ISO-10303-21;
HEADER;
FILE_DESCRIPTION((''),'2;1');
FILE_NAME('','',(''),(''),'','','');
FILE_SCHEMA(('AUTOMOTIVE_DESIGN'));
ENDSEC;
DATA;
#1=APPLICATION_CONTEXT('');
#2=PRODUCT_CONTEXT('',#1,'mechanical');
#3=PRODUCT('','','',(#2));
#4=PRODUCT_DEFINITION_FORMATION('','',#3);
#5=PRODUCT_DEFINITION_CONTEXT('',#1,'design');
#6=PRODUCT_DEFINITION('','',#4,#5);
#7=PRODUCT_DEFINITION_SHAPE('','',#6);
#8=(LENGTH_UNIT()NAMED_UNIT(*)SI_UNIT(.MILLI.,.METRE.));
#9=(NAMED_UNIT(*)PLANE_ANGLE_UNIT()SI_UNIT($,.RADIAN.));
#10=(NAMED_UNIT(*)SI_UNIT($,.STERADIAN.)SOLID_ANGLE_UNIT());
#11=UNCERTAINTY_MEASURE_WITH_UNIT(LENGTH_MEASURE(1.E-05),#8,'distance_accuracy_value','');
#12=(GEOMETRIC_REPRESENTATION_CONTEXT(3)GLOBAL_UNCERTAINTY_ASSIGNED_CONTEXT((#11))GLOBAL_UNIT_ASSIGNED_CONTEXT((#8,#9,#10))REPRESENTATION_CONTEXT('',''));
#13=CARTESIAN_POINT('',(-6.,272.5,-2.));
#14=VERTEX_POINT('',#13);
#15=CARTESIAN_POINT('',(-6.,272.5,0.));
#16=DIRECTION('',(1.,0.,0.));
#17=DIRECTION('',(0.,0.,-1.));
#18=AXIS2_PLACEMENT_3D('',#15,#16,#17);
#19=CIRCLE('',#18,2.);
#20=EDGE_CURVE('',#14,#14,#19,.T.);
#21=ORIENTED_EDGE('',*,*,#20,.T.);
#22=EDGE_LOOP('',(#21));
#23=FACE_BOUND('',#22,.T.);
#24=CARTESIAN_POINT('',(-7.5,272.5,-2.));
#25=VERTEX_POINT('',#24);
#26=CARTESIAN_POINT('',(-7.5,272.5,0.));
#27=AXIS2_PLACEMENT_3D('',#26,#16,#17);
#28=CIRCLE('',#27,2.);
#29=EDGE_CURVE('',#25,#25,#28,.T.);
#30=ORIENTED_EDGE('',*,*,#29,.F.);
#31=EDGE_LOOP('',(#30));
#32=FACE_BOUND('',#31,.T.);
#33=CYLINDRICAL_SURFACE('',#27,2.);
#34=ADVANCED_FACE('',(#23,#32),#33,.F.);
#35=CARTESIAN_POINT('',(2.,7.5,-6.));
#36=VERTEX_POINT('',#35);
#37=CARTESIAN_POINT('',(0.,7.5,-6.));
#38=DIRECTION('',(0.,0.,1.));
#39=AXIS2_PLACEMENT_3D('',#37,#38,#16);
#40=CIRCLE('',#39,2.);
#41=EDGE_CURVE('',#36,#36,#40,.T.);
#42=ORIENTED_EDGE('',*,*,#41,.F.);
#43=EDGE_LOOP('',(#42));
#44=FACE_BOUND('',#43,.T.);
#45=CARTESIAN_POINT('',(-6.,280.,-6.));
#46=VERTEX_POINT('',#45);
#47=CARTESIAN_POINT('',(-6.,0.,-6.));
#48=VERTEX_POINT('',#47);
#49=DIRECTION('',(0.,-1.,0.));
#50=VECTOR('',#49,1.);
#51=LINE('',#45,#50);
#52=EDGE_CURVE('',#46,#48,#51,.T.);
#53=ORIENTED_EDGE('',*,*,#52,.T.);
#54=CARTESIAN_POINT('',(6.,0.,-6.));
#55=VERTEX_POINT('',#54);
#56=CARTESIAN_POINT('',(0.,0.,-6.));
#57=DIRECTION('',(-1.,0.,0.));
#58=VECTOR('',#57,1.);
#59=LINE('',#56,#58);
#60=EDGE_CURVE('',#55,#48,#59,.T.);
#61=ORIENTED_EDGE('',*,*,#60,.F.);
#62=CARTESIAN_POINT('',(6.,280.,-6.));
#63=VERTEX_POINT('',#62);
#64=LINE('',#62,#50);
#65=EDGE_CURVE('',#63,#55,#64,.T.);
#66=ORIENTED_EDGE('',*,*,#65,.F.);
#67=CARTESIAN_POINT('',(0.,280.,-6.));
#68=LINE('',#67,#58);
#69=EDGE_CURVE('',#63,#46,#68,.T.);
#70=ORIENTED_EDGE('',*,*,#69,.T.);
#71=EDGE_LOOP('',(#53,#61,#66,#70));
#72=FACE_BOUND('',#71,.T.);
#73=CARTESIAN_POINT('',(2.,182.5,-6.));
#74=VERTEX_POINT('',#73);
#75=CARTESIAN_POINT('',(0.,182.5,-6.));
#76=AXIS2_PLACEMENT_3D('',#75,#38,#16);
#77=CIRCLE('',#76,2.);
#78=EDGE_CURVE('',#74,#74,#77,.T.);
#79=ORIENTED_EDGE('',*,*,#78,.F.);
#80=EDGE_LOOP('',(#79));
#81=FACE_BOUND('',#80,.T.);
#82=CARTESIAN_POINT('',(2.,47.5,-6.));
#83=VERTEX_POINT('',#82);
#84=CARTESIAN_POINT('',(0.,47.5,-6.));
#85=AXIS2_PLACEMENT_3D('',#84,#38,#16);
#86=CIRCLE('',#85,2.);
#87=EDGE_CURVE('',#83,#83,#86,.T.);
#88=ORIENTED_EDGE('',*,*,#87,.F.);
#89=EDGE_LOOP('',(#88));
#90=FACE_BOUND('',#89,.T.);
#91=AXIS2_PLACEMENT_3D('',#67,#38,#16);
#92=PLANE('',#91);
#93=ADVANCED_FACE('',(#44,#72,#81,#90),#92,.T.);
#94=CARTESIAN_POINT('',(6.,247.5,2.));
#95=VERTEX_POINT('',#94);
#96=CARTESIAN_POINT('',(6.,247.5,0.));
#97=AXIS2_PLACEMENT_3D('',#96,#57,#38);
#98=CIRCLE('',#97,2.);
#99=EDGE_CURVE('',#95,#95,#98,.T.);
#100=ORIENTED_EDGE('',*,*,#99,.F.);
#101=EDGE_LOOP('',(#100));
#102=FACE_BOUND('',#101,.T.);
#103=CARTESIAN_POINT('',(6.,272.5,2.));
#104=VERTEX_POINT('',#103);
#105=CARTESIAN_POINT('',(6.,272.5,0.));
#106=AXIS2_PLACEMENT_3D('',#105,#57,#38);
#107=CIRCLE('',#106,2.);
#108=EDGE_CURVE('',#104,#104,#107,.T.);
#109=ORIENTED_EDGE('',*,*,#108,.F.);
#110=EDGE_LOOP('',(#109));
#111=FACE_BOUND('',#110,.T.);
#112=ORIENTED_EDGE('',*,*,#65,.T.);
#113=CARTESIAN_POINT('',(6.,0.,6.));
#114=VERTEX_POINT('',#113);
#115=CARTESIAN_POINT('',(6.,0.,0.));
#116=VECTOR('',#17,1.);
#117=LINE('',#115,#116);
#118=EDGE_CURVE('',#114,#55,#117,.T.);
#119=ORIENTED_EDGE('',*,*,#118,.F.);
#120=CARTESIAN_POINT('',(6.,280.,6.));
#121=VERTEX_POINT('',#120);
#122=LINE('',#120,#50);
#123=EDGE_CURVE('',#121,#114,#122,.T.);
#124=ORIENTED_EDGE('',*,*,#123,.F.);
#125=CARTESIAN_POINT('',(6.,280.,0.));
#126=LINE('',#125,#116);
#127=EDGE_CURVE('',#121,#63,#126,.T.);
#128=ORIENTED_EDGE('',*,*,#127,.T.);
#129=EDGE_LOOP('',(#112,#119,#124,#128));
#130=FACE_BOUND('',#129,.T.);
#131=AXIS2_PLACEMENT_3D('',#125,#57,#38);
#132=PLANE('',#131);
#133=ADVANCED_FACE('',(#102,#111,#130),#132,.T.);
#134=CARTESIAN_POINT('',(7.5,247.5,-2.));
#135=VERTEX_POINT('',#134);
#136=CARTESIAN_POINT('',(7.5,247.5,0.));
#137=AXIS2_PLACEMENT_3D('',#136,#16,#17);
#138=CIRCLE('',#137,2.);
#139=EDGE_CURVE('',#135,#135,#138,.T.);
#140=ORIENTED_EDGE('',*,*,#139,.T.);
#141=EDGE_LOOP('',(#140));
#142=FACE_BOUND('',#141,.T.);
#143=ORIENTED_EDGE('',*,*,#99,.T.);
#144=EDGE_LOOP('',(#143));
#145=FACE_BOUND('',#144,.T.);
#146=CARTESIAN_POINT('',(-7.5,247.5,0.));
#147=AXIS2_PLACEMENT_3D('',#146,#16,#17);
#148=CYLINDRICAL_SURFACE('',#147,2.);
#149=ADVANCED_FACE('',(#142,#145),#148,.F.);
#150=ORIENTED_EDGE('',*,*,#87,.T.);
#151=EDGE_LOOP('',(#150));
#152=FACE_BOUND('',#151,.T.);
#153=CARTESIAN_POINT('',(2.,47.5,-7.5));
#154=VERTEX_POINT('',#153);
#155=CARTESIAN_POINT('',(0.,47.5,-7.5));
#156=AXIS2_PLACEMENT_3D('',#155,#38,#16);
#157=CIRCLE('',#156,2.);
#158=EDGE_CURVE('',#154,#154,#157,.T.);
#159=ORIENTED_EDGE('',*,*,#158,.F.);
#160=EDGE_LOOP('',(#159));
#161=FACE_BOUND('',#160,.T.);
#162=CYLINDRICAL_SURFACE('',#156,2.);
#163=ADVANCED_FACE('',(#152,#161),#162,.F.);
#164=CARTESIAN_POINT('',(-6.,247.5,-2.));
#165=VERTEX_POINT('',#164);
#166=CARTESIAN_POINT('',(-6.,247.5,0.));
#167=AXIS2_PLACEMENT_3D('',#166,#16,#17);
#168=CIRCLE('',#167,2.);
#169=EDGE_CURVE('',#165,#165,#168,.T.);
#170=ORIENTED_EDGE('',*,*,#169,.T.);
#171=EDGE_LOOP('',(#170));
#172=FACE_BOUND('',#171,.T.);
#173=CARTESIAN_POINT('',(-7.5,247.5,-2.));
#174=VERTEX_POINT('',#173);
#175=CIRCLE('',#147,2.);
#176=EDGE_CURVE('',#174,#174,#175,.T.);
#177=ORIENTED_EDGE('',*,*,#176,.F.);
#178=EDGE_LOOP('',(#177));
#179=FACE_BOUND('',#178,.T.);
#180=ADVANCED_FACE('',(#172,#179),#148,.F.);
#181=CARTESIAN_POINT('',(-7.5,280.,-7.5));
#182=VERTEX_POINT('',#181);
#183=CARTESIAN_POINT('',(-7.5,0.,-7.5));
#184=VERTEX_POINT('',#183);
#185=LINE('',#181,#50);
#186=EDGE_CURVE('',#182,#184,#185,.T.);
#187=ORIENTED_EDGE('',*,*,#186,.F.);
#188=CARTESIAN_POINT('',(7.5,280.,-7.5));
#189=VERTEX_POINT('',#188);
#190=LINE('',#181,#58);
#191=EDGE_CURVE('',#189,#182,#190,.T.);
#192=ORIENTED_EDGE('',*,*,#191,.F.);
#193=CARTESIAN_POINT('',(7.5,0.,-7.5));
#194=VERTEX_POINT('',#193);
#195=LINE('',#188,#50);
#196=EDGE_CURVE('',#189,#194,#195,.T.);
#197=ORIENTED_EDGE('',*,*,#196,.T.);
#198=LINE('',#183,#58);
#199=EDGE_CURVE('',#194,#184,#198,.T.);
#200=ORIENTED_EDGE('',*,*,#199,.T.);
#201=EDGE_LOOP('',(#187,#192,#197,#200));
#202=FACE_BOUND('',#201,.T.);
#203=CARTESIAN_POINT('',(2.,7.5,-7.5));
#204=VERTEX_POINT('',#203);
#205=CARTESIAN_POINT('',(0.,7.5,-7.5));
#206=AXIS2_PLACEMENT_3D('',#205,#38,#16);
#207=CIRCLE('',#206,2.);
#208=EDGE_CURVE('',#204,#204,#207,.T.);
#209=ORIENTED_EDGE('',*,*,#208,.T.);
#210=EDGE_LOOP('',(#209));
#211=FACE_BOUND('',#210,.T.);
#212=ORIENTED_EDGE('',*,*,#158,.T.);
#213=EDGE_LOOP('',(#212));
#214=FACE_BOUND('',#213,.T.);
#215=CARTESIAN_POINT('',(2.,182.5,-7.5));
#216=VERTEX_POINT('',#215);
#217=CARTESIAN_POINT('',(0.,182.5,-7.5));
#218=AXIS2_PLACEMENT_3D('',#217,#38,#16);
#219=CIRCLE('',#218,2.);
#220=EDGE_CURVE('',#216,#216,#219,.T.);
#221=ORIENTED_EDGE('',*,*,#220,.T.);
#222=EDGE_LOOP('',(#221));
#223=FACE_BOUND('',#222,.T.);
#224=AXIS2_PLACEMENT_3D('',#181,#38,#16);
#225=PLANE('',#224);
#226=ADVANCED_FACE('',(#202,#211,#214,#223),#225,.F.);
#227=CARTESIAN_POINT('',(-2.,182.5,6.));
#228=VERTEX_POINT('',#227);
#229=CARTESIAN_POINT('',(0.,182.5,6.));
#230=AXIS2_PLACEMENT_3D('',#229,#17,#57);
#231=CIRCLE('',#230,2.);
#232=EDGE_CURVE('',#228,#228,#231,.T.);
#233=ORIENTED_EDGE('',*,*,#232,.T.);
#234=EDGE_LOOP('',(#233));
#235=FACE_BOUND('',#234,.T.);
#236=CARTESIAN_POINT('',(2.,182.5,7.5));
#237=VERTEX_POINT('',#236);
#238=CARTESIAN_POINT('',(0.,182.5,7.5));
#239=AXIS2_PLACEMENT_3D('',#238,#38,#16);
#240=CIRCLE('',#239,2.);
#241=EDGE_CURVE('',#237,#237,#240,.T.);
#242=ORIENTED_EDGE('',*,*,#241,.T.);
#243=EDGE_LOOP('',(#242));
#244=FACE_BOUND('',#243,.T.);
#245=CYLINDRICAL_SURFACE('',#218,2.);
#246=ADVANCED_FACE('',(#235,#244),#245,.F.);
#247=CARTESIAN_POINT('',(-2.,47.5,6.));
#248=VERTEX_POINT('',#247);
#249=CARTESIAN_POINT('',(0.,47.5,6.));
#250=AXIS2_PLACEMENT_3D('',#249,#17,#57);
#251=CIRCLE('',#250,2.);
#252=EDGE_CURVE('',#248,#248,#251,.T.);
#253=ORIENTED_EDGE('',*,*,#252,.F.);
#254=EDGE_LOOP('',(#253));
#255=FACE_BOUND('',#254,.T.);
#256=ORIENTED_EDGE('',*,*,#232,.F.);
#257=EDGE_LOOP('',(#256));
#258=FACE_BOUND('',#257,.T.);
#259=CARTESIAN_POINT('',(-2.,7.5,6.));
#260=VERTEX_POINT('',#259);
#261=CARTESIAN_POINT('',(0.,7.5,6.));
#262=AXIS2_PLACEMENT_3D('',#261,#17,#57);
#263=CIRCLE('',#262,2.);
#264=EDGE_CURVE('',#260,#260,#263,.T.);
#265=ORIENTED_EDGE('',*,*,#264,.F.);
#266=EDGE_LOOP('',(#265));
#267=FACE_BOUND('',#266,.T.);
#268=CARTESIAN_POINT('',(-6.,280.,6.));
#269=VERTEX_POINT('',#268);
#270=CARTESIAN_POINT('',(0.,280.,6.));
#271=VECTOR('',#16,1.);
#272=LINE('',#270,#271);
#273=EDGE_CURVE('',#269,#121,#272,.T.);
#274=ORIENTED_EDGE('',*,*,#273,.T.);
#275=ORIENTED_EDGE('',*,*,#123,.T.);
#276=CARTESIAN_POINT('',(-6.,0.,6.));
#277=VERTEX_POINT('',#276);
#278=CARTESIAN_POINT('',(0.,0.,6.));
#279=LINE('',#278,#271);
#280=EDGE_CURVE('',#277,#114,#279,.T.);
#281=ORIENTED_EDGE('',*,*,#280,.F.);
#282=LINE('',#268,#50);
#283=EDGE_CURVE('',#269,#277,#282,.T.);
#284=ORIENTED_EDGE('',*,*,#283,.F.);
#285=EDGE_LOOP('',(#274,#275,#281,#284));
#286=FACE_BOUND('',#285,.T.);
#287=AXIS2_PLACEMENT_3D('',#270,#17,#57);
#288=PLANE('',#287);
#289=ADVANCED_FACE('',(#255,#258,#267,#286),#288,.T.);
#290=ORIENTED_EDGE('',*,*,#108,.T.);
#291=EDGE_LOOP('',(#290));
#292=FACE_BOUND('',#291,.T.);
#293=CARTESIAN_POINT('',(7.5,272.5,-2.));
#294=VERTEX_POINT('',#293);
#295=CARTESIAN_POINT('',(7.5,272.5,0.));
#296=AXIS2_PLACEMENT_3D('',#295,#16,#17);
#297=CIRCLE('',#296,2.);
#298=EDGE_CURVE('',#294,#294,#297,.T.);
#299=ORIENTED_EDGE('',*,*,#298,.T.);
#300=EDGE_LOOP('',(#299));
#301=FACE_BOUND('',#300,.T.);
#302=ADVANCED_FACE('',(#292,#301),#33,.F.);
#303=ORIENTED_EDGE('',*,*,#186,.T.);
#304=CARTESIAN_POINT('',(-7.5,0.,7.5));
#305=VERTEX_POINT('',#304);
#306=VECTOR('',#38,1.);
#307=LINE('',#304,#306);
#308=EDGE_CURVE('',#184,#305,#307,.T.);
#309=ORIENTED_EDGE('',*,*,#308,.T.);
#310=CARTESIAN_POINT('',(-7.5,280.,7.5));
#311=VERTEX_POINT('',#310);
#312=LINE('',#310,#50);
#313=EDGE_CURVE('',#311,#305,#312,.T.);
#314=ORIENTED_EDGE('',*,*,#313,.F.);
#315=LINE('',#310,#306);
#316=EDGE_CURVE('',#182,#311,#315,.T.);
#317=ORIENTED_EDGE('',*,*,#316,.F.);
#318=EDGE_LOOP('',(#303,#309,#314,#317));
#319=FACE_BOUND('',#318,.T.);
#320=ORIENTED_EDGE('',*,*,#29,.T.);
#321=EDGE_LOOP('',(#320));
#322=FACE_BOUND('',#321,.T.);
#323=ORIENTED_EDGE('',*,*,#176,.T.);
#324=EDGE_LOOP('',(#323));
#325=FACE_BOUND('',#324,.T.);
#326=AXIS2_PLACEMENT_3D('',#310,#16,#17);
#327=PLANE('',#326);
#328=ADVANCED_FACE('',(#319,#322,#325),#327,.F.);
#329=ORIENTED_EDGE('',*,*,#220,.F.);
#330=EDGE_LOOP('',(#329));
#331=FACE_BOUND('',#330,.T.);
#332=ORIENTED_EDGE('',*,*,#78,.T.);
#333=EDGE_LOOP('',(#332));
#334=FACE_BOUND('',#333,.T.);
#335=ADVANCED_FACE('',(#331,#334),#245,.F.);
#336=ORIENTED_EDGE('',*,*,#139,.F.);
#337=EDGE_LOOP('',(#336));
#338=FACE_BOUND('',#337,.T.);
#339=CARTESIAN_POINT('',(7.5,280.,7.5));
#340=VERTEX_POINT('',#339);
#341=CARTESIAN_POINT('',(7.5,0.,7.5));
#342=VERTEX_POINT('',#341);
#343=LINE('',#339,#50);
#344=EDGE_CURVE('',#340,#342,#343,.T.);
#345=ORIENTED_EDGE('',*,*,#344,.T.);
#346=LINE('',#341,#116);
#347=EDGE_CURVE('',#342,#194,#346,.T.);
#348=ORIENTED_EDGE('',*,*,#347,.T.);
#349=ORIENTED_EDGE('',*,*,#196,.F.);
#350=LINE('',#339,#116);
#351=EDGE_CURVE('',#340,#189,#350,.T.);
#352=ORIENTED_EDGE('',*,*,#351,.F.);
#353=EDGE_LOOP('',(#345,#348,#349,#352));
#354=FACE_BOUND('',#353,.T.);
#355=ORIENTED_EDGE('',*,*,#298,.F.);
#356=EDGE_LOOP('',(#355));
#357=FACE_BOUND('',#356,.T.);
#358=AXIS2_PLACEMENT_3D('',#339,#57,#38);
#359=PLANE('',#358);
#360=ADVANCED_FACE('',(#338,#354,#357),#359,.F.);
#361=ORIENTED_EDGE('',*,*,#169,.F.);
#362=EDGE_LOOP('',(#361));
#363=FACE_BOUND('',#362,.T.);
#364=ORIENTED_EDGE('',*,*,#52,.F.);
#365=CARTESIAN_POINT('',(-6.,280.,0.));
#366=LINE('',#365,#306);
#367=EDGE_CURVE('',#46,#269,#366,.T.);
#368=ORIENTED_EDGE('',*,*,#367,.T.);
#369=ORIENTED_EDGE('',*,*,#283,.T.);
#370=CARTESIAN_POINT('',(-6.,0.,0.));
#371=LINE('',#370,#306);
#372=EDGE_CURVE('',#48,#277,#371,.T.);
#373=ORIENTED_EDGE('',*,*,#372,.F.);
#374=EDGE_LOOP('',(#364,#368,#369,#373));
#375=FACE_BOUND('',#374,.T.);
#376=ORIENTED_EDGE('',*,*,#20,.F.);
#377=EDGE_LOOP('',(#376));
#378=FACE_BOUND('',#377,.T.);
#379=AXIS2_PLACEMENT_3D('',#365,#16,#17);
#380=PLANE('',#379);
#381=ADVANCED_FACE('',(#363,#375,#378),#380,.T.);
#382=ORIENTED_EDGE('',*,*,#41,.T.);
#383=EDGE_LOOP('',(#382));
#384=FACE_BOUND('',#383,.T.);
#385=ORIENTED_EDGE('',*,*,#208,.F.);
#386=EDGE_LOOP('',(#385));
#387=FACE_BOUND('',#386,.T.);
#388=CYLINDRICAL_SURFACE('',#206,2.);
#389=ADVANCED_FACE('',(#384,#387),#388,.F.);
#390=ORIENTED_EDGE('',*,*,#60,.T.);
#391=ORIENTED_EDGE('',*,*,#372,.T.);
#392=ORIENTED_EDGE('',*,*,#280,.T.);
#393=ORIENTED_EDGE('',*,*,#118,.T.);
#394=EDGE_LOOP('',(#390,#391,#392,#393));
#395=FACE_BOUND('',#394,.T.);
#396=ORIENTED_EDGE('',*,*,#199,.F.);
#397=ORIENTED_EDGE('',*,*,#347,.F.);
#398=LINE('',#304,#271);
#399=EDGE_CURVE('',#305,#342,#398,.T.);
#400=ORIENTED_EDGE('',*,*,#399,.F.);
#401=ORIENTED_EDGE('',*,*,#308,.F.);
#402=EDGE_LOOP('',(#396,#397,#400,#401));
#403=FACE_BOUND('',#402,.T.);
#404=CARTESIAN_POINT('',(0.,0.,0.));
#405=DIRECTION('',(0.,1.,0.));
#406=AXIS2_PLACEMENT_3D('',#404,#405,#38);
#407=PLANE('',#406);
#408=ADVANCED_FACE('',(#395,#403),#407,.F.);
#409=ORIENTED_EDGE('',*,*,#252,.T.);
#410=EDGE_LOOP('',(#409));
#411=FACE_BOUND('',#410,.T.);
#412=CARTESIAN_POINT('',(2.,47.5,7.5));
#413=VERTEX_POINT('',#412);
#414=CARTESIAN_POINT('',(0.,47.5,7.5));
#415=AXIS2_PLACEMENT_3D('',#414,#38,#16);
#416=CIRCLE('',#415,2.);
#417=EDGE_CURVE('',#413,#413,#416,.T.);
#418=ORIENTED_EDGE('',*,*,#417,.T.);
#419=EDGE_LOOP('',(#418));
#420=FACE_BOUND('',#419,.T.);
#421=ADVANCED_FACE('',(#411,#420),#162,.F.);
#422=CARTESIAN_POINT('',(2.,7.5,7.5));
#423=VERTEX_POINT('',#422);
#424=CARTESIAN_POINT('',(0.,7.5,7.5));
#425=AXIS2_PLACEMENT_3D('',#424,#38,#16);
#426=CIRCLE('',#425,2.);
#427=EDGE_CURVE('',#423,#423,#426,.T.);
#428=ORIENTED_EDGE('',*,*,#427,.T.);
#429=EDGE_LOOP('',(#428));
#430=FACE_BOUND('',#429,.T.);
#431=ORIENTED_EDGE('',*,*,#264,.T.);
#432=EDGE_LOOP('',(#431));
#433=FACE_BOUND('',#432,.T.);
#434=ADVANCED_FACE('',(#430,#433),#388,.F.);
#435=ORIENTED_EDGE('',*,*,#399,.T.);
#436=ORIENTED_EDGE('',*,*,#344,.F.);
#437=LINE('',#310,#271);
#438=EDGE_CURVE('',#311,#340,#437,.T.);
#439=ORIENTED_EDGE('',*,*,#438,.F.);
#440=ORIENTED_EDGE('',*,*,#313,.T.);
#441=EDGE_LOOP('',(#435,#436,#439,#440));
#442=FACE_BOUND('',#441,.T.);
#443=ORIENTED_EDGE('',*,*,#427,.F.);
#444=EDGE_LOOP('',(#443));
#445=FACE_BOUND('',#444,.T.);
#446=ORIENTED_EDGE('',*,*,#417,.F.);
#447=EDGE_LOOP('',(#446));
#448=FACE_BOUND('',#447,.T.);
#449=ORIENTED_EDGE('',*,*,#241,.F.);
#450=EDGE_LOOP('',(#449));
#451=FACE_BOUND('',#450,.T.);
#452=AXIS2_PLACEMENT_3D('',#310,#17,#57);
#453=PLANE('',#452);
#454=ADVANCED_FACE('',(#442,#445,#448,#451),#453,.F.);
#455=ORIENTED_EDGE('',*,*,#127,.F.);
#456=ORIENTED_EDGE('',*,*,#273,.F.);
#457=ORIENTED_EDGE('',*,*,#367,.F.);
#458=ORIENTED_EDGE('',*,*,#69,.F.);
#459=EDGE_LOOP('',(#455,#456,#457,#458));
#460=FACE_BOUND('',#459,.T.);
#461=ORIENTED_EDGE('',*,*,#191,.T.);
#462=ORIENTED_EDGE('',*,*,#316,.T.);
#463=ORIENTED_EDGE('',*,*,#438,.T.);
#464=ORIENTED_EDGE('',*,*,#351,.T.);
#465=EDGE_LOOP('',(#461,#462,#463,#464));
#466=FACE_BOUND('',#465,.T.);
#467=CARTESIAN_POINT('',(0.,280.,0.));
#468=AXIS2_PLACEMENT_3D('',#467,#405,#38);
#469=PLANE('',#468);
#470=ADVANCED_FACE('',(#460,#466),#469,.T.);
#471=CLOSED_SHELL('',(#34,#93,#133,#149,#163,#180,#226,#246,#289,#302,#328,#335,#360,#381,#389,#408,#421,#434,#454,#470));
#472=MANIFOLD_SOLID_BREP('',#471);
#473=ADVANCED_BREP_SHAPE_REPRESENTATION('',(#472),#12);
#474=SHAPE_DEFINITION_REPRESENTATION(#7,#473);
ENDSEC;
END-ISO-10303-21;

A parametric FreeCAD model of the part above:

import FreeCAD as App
import Part
import Sketcher

V = App.Vector
Q = App.Units.Quantity

doc = App.newDocument("Part")
params = doc.addObject("Spreadsheet::Sheet", "Params")
for row, (alias, value) in enumerate([
    ("sketch1_width", "15 mm"),
    ("sketch1_width2", "12 mm"),
    ("pad1_length", "280 mm"),
    ("sketch2_diameter", "4 mm"),
    ("sketch3_diameter", "4 mm"),
], start=1):
    params.set(f"A{row}", alias)
    params.set(f"B{row}", "=" + value)
    params.setAlias(f"B{row}", alias)

body = doc.addObject("PartDesign::Body", "Body")

# Sketch on XZ plane
sketch1 = body.newObject("Sketcher::SketchObject", "Sketch")
sketch1.AttachmentSupport = (doc.getObject("XZ_Plane"), [""])
sketch1.MapMode = "FlatFace"
sketch1.addGeometry([
    Part.LineSegment(V(-8, -8, 0), V(-8, 8, 0)),  # 0
    Part.LineSegment(V(-8, 8, 0), V(8, 8, 0)),  # 1
    Part.LineSegment(V(8, 8, 0), V(8, -8, 0)),  # 2
    Part.LineSegment(V(8, -8, 0), V(-8, -8, 0)),  # 3
    Part.LineSegment(V(6, 6, 0), V(-6, 6, 0)),  # 4
    Part.LineSegment(V(-6, 6, 0), V(-6, -6, 0)),  # 5
    Part.LineSegment(V(-6, -6, 0), V(6, -6, 0)),  # 6
    Part.LineSegment(V(6, -6, 0), V(6, 6, 0)),  # 7
], False)
sketch1.addConstraint([
    Sketcher.Constraint("Coincident", 0, 2, 1, 1),
    Sketcher.Constraint("Coincident", 1, 2, 2, 1),
    Sketcher.Constraint("Coincident", 2, 2, 3, 1),
    Sketcher.Constraint("Coincident", 3, 2, 0, 1),
    Sketcher.Constraint("Coincident", 4, 2, 5, 1),
    Sketcher.Constraint("Coincident", 5, 2, 6, 1),
    Sketcher.Constraint("Coincident", 6, 2, 7, 1),
    Sketcher.Constraint("Coincident", 7, 2, 4, 1),
    Sketcher.Constraint("Vertical", 0),
    Sketcher.Constraint("Horizontal", 1),
    Sketcher.Constraint("Vertical", 2),
    Sketcher.Constraint("Horizontal", 3),
    Sketcher.Constraint("Horizontal", 4),
    Sketcher.Constraint("Vertical", 5),
    Sketcher.Constraint("Horizontal", 6),
    Sketcher.Constraint("Vertical", 7),
    Sketcher.Constraint("Symmetric", 0, 2, 2, 2, -1, 1),
    Sketcher.Constraint("Symmetric", 4, 2, 6, 2, -1, 1),
    Sketcher.Constraint("Equal", 3, 0),
    Sketcher.Constraint("Equal", 6, 5),
    Sketcher.Constraint("DistanceX", 1, 1, 1, 2, Q("15 mm")),
    Sketcher.Constraint("DistanceX", 4, 2, 4, 1, Q("12 mm")),
])
sketch1.setExpression("Constraints[20]", "Params.sketch1_width")
sketch1.setExpression("Constraints[21]", "Params.sketch1_width2")
pad1 = body.newObject("PartDesign::Pad", "Pad")
pad1.Profile = sketch1
pad1.setExpression("Length", "Params.pad1_length")
pad1.Reversed = True

# Sketch on YZ plane
sketch2 = body.newObject("Sketcher::SketchObject", "Sketch001")
sketch2.AttachmentSupport = (doc.getObject("YZ_Plane"), [""])
sketch2.MapMode = "FlatFace"
sketch2.AttachmentOffset = App.Placement(V(0, 0, 7.5), App.Rotation())
sketch2.addGeometry([
    Part.Circle(V(272.5, 0, 0), V(0, 0, 1), 2),
    Part.Circle(V(247.5, 0, 0), V(0, 0, 1), 2),
], False)
sketch2.addConstraint([
    Sketcher.Constraint("Equal", 0, 1),
    Sketcher.Constraint("PointOnObject", 0, 3, -1),
    Sketcher.Constraint("PointOnObject", 1, 3, -1),
    Sketcher.Constraint("Diameter", 0, Q("4 mm")),
    Sketcher.Constraint("DistanceX", 1, 3, 0, 3, Q("25 mm")),
    Sketcher.Constraint("DistanceX", -1, 1, 0, 3, Q("272.5 mm")),
])
sketch2.setExpression("Constraints[3]", "Params.sketch2_diameter")
pocket1 = body.newObject("PartDesign::Pocket", "Pocket")
pocket1.Profile = sketch2
pocket1.Type = "ThroughAll"

# Sketch on XY plane
sketch3 = body.newObject("Sketcher::SketchObject", "Sketch002")
sketch3.AttachmentSupport = (doc.getObject("XY_Plane"), [""])
sketch3.MapMode = "FlatFace"
sketch3.AttachmentOffset = App.Placement(V(0, 0, 7.5), App.Rotation())
sketch3.addGeometry([
    Part.Circle(V(0, 7.5, 0), V(0, 0, 1), 2),
    Part.Circle(V(0, 47.5, 0), V(0, 0, 1), 2),
    Part.Circle(V(0, 182.5, 0), V(0, 0, 1), 2),
], False)
sketch3.addConstraint([
    Sketcher.Constraint("Equal", 0, 1),
    Sketcher.Constraint("Equal", 1, 2),
    Sketcher.Constraint("PointOnObject", 0, 3, -2),
    Sketcher.Constraint("PointOnObject", 1, 3, -2),
    Sketcher.Constraint("PointOnObject", 2, 3, -2),
    Sketcher.Constraint("Diameter", 0, Q("4 mm")),
    Sketcher.Constraint("DistanceY", 0, 3, 1, 3, Q("40 mm")),
    Sketcher.Constraint("DistanceY", 1, 3, 2, 3, Q("135 mm")),
    Sketcher.Constraint("DistanceY", -1, 1, 0, 3, Q("7.5 mm")),
])
sketch3.setExpression("Constraints[5]", "Params.sketch3_diameter")
pocket2 = body.newObject("PartDesign::Pocket", "Pocket001")
pocket2.Profile = sketch3
pocket2.Type = "ThroughAll"

doc.recompute()
